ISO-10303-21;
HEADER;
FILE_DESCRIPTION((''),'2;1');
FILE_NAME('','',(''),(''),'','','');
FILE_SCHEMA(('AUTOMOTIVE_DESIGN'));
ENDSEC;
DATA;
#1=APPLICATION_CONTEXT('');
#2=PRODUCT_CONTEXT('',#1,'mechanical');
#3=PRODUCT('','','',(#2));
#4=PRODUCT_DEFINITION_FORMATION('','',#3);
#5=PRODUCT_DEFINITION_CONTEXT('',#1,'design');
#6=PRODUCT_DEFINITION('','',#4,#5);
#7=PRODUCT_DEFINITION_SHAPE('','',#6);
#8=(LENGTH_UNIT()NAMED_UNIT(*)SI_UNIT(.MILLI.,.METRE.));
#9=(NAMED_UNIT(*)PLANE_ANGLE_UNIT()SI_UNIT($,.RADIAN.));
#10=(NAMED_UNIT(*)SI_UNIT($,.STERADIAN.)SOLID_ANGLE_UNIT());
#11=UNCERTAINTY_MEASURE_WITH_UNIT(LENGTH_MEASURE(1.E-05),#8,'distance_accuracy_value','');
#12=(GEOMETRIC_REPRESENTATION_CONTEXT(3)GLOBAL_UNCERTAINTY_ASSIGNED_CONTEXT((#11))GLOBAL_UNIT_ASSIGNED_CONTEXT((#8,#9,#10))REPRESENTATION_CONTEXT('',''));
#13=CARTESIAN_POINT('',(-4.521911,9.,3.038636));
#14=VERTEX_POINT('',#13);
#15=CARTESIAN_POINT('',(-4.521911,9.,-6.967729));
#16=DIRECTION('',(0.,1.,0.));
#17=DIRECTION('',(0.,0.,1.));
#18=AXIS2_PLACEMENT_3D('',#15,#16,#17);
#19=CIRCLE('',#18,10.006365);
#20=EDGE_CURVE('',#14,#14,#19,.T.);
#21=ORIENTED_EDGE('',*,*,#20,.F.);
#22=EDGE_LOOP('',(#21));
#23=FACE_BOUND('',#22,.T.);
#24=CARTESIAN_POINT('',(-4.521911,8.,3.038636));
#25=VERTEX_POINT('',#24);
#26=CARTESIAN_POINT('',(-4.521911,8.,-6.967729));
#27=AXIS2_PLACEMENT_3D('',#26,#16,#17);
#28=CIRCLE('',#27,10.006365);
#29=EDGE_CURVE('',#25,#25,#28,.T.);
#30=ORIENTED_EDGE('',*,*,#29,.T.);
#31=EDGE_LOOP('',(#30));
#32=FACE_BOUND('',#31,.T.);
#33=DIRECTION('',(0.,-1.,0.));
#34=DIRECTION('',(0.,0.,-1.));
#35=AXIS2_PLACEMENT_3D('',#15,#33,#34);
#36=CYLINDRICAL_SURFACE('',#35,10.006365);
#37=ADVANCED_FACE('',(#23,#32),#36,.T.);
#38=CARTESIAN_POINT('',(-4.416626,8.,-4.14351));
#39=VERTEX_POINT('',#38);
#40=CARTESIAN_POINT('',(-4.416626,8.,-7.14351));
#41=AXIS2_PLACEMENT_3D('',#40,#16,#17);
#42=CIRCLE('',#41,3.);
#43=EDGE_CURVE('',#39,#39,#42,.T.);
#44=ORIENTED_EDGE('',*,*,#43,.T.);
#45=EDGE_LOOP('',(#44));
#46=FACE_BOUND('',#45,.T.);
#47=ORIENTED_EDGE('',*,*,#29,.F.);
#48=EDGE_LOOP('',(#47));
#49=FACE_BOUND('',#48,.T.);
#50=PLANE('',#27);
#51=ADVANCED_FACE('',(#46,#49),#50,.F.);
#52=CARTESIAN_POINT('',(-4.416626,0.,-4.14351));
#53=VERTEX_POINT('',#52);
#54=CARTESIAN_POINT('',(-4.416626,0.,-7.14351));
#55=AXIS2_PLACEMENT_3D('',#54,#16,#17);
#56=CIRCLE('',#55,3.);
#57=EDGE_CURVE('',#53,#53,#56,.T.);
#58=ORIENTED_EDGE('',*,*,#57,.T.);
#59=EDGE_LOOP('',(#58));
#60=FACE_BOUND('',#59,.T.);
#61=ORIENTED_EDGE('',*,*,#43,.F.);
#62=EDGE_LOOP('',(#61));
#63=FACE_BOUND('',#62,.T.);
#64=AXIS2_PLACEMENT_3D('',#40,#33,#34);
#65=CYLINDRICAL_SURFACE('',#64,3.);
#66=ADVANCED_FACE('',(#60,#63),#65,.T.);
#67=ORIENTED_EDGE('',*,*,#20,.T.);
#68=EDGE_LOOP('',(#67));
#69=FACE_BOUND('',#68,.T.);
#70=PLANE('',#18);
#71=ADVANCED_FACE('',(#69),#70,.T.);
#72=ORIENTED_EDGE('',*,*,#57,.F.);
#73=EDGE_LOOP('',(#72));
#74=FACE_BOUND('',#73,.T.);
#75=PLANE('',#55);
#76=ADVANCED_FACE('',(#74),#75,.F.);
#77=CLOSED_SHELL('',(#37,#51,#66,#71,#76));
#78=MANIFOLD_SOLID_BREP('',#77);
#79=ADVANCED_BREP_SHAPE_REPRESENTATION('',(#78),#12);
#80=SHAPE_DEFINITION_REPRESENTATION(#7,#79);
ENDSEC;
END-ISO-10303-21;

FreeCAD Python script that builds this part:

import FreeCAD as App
import Part
import Sketcher

V = App.Vector

doc = App.newDocument("Part")
body = doc.addObject("PartDesign::Body", "Body")

# Sketch on XZ plane
sketch1 = body.newObject("Sketcher::SketchObject", "Sketch")
sketch1.AttachmentSupport = (doc.getObject("XZ_Plane"), [""])
sketch1.MapMode = "FlatFace"
sketch1.addGeometry(Part.Circle(V(-4.4, -7.1, 0), V(0, 0, 1), 3), False)
sketch1.addConstraint(Sketcher.Constraint("Diameter", 0, 6.0))
sketch1.addConstraint(Sketcher.Constraint("DistanceY", 0, 3, -1, 1, 7.14351))
sketch1.addConstraint(Sketcher.Constraint("DistanceX", 0, 3, -1, 1, 4.416626))
pad1 = body.newObject("PartDesign::Pad", "Pad")
pad1.Profile = sketch1
pad1.Length = 8
pad1.Reversed = True

# Sketch on XZ plane
sketch2 = body.newObject("Sketcher::SketchObject", "Sketch001")
sketch2.AttachmentSupport = (doc.getObject("XZ_Plane"), [""])
sketch2.MapMode = "FlatFace"
sketch2.AttachmentOffset = App.Placement(V(0, 0, -8), App.Rotation())
sketch2.addGeometry(Part.Circle(V(-5, -7, 0), V(0, 0, 1), 10), False)
sketch2.addConstraint(Sketcher.Constraint("Diameter", 0, 20.012731))
sketch2.addConstraint(Sketcher.Constraint("DistanceX", 0, 3, -1, 1, 4.521911))
sketch2.addConstraint(Sketcher.Constraint("DistanceY", 0, 3, -1, 1, 6.967729))
pad2 = body.newObject("PartDesign::Pad", "Pad001")
pad2.Profile = sketch2
pad2.Length = 1
pad2.Reversed = True

doc.recompute()
